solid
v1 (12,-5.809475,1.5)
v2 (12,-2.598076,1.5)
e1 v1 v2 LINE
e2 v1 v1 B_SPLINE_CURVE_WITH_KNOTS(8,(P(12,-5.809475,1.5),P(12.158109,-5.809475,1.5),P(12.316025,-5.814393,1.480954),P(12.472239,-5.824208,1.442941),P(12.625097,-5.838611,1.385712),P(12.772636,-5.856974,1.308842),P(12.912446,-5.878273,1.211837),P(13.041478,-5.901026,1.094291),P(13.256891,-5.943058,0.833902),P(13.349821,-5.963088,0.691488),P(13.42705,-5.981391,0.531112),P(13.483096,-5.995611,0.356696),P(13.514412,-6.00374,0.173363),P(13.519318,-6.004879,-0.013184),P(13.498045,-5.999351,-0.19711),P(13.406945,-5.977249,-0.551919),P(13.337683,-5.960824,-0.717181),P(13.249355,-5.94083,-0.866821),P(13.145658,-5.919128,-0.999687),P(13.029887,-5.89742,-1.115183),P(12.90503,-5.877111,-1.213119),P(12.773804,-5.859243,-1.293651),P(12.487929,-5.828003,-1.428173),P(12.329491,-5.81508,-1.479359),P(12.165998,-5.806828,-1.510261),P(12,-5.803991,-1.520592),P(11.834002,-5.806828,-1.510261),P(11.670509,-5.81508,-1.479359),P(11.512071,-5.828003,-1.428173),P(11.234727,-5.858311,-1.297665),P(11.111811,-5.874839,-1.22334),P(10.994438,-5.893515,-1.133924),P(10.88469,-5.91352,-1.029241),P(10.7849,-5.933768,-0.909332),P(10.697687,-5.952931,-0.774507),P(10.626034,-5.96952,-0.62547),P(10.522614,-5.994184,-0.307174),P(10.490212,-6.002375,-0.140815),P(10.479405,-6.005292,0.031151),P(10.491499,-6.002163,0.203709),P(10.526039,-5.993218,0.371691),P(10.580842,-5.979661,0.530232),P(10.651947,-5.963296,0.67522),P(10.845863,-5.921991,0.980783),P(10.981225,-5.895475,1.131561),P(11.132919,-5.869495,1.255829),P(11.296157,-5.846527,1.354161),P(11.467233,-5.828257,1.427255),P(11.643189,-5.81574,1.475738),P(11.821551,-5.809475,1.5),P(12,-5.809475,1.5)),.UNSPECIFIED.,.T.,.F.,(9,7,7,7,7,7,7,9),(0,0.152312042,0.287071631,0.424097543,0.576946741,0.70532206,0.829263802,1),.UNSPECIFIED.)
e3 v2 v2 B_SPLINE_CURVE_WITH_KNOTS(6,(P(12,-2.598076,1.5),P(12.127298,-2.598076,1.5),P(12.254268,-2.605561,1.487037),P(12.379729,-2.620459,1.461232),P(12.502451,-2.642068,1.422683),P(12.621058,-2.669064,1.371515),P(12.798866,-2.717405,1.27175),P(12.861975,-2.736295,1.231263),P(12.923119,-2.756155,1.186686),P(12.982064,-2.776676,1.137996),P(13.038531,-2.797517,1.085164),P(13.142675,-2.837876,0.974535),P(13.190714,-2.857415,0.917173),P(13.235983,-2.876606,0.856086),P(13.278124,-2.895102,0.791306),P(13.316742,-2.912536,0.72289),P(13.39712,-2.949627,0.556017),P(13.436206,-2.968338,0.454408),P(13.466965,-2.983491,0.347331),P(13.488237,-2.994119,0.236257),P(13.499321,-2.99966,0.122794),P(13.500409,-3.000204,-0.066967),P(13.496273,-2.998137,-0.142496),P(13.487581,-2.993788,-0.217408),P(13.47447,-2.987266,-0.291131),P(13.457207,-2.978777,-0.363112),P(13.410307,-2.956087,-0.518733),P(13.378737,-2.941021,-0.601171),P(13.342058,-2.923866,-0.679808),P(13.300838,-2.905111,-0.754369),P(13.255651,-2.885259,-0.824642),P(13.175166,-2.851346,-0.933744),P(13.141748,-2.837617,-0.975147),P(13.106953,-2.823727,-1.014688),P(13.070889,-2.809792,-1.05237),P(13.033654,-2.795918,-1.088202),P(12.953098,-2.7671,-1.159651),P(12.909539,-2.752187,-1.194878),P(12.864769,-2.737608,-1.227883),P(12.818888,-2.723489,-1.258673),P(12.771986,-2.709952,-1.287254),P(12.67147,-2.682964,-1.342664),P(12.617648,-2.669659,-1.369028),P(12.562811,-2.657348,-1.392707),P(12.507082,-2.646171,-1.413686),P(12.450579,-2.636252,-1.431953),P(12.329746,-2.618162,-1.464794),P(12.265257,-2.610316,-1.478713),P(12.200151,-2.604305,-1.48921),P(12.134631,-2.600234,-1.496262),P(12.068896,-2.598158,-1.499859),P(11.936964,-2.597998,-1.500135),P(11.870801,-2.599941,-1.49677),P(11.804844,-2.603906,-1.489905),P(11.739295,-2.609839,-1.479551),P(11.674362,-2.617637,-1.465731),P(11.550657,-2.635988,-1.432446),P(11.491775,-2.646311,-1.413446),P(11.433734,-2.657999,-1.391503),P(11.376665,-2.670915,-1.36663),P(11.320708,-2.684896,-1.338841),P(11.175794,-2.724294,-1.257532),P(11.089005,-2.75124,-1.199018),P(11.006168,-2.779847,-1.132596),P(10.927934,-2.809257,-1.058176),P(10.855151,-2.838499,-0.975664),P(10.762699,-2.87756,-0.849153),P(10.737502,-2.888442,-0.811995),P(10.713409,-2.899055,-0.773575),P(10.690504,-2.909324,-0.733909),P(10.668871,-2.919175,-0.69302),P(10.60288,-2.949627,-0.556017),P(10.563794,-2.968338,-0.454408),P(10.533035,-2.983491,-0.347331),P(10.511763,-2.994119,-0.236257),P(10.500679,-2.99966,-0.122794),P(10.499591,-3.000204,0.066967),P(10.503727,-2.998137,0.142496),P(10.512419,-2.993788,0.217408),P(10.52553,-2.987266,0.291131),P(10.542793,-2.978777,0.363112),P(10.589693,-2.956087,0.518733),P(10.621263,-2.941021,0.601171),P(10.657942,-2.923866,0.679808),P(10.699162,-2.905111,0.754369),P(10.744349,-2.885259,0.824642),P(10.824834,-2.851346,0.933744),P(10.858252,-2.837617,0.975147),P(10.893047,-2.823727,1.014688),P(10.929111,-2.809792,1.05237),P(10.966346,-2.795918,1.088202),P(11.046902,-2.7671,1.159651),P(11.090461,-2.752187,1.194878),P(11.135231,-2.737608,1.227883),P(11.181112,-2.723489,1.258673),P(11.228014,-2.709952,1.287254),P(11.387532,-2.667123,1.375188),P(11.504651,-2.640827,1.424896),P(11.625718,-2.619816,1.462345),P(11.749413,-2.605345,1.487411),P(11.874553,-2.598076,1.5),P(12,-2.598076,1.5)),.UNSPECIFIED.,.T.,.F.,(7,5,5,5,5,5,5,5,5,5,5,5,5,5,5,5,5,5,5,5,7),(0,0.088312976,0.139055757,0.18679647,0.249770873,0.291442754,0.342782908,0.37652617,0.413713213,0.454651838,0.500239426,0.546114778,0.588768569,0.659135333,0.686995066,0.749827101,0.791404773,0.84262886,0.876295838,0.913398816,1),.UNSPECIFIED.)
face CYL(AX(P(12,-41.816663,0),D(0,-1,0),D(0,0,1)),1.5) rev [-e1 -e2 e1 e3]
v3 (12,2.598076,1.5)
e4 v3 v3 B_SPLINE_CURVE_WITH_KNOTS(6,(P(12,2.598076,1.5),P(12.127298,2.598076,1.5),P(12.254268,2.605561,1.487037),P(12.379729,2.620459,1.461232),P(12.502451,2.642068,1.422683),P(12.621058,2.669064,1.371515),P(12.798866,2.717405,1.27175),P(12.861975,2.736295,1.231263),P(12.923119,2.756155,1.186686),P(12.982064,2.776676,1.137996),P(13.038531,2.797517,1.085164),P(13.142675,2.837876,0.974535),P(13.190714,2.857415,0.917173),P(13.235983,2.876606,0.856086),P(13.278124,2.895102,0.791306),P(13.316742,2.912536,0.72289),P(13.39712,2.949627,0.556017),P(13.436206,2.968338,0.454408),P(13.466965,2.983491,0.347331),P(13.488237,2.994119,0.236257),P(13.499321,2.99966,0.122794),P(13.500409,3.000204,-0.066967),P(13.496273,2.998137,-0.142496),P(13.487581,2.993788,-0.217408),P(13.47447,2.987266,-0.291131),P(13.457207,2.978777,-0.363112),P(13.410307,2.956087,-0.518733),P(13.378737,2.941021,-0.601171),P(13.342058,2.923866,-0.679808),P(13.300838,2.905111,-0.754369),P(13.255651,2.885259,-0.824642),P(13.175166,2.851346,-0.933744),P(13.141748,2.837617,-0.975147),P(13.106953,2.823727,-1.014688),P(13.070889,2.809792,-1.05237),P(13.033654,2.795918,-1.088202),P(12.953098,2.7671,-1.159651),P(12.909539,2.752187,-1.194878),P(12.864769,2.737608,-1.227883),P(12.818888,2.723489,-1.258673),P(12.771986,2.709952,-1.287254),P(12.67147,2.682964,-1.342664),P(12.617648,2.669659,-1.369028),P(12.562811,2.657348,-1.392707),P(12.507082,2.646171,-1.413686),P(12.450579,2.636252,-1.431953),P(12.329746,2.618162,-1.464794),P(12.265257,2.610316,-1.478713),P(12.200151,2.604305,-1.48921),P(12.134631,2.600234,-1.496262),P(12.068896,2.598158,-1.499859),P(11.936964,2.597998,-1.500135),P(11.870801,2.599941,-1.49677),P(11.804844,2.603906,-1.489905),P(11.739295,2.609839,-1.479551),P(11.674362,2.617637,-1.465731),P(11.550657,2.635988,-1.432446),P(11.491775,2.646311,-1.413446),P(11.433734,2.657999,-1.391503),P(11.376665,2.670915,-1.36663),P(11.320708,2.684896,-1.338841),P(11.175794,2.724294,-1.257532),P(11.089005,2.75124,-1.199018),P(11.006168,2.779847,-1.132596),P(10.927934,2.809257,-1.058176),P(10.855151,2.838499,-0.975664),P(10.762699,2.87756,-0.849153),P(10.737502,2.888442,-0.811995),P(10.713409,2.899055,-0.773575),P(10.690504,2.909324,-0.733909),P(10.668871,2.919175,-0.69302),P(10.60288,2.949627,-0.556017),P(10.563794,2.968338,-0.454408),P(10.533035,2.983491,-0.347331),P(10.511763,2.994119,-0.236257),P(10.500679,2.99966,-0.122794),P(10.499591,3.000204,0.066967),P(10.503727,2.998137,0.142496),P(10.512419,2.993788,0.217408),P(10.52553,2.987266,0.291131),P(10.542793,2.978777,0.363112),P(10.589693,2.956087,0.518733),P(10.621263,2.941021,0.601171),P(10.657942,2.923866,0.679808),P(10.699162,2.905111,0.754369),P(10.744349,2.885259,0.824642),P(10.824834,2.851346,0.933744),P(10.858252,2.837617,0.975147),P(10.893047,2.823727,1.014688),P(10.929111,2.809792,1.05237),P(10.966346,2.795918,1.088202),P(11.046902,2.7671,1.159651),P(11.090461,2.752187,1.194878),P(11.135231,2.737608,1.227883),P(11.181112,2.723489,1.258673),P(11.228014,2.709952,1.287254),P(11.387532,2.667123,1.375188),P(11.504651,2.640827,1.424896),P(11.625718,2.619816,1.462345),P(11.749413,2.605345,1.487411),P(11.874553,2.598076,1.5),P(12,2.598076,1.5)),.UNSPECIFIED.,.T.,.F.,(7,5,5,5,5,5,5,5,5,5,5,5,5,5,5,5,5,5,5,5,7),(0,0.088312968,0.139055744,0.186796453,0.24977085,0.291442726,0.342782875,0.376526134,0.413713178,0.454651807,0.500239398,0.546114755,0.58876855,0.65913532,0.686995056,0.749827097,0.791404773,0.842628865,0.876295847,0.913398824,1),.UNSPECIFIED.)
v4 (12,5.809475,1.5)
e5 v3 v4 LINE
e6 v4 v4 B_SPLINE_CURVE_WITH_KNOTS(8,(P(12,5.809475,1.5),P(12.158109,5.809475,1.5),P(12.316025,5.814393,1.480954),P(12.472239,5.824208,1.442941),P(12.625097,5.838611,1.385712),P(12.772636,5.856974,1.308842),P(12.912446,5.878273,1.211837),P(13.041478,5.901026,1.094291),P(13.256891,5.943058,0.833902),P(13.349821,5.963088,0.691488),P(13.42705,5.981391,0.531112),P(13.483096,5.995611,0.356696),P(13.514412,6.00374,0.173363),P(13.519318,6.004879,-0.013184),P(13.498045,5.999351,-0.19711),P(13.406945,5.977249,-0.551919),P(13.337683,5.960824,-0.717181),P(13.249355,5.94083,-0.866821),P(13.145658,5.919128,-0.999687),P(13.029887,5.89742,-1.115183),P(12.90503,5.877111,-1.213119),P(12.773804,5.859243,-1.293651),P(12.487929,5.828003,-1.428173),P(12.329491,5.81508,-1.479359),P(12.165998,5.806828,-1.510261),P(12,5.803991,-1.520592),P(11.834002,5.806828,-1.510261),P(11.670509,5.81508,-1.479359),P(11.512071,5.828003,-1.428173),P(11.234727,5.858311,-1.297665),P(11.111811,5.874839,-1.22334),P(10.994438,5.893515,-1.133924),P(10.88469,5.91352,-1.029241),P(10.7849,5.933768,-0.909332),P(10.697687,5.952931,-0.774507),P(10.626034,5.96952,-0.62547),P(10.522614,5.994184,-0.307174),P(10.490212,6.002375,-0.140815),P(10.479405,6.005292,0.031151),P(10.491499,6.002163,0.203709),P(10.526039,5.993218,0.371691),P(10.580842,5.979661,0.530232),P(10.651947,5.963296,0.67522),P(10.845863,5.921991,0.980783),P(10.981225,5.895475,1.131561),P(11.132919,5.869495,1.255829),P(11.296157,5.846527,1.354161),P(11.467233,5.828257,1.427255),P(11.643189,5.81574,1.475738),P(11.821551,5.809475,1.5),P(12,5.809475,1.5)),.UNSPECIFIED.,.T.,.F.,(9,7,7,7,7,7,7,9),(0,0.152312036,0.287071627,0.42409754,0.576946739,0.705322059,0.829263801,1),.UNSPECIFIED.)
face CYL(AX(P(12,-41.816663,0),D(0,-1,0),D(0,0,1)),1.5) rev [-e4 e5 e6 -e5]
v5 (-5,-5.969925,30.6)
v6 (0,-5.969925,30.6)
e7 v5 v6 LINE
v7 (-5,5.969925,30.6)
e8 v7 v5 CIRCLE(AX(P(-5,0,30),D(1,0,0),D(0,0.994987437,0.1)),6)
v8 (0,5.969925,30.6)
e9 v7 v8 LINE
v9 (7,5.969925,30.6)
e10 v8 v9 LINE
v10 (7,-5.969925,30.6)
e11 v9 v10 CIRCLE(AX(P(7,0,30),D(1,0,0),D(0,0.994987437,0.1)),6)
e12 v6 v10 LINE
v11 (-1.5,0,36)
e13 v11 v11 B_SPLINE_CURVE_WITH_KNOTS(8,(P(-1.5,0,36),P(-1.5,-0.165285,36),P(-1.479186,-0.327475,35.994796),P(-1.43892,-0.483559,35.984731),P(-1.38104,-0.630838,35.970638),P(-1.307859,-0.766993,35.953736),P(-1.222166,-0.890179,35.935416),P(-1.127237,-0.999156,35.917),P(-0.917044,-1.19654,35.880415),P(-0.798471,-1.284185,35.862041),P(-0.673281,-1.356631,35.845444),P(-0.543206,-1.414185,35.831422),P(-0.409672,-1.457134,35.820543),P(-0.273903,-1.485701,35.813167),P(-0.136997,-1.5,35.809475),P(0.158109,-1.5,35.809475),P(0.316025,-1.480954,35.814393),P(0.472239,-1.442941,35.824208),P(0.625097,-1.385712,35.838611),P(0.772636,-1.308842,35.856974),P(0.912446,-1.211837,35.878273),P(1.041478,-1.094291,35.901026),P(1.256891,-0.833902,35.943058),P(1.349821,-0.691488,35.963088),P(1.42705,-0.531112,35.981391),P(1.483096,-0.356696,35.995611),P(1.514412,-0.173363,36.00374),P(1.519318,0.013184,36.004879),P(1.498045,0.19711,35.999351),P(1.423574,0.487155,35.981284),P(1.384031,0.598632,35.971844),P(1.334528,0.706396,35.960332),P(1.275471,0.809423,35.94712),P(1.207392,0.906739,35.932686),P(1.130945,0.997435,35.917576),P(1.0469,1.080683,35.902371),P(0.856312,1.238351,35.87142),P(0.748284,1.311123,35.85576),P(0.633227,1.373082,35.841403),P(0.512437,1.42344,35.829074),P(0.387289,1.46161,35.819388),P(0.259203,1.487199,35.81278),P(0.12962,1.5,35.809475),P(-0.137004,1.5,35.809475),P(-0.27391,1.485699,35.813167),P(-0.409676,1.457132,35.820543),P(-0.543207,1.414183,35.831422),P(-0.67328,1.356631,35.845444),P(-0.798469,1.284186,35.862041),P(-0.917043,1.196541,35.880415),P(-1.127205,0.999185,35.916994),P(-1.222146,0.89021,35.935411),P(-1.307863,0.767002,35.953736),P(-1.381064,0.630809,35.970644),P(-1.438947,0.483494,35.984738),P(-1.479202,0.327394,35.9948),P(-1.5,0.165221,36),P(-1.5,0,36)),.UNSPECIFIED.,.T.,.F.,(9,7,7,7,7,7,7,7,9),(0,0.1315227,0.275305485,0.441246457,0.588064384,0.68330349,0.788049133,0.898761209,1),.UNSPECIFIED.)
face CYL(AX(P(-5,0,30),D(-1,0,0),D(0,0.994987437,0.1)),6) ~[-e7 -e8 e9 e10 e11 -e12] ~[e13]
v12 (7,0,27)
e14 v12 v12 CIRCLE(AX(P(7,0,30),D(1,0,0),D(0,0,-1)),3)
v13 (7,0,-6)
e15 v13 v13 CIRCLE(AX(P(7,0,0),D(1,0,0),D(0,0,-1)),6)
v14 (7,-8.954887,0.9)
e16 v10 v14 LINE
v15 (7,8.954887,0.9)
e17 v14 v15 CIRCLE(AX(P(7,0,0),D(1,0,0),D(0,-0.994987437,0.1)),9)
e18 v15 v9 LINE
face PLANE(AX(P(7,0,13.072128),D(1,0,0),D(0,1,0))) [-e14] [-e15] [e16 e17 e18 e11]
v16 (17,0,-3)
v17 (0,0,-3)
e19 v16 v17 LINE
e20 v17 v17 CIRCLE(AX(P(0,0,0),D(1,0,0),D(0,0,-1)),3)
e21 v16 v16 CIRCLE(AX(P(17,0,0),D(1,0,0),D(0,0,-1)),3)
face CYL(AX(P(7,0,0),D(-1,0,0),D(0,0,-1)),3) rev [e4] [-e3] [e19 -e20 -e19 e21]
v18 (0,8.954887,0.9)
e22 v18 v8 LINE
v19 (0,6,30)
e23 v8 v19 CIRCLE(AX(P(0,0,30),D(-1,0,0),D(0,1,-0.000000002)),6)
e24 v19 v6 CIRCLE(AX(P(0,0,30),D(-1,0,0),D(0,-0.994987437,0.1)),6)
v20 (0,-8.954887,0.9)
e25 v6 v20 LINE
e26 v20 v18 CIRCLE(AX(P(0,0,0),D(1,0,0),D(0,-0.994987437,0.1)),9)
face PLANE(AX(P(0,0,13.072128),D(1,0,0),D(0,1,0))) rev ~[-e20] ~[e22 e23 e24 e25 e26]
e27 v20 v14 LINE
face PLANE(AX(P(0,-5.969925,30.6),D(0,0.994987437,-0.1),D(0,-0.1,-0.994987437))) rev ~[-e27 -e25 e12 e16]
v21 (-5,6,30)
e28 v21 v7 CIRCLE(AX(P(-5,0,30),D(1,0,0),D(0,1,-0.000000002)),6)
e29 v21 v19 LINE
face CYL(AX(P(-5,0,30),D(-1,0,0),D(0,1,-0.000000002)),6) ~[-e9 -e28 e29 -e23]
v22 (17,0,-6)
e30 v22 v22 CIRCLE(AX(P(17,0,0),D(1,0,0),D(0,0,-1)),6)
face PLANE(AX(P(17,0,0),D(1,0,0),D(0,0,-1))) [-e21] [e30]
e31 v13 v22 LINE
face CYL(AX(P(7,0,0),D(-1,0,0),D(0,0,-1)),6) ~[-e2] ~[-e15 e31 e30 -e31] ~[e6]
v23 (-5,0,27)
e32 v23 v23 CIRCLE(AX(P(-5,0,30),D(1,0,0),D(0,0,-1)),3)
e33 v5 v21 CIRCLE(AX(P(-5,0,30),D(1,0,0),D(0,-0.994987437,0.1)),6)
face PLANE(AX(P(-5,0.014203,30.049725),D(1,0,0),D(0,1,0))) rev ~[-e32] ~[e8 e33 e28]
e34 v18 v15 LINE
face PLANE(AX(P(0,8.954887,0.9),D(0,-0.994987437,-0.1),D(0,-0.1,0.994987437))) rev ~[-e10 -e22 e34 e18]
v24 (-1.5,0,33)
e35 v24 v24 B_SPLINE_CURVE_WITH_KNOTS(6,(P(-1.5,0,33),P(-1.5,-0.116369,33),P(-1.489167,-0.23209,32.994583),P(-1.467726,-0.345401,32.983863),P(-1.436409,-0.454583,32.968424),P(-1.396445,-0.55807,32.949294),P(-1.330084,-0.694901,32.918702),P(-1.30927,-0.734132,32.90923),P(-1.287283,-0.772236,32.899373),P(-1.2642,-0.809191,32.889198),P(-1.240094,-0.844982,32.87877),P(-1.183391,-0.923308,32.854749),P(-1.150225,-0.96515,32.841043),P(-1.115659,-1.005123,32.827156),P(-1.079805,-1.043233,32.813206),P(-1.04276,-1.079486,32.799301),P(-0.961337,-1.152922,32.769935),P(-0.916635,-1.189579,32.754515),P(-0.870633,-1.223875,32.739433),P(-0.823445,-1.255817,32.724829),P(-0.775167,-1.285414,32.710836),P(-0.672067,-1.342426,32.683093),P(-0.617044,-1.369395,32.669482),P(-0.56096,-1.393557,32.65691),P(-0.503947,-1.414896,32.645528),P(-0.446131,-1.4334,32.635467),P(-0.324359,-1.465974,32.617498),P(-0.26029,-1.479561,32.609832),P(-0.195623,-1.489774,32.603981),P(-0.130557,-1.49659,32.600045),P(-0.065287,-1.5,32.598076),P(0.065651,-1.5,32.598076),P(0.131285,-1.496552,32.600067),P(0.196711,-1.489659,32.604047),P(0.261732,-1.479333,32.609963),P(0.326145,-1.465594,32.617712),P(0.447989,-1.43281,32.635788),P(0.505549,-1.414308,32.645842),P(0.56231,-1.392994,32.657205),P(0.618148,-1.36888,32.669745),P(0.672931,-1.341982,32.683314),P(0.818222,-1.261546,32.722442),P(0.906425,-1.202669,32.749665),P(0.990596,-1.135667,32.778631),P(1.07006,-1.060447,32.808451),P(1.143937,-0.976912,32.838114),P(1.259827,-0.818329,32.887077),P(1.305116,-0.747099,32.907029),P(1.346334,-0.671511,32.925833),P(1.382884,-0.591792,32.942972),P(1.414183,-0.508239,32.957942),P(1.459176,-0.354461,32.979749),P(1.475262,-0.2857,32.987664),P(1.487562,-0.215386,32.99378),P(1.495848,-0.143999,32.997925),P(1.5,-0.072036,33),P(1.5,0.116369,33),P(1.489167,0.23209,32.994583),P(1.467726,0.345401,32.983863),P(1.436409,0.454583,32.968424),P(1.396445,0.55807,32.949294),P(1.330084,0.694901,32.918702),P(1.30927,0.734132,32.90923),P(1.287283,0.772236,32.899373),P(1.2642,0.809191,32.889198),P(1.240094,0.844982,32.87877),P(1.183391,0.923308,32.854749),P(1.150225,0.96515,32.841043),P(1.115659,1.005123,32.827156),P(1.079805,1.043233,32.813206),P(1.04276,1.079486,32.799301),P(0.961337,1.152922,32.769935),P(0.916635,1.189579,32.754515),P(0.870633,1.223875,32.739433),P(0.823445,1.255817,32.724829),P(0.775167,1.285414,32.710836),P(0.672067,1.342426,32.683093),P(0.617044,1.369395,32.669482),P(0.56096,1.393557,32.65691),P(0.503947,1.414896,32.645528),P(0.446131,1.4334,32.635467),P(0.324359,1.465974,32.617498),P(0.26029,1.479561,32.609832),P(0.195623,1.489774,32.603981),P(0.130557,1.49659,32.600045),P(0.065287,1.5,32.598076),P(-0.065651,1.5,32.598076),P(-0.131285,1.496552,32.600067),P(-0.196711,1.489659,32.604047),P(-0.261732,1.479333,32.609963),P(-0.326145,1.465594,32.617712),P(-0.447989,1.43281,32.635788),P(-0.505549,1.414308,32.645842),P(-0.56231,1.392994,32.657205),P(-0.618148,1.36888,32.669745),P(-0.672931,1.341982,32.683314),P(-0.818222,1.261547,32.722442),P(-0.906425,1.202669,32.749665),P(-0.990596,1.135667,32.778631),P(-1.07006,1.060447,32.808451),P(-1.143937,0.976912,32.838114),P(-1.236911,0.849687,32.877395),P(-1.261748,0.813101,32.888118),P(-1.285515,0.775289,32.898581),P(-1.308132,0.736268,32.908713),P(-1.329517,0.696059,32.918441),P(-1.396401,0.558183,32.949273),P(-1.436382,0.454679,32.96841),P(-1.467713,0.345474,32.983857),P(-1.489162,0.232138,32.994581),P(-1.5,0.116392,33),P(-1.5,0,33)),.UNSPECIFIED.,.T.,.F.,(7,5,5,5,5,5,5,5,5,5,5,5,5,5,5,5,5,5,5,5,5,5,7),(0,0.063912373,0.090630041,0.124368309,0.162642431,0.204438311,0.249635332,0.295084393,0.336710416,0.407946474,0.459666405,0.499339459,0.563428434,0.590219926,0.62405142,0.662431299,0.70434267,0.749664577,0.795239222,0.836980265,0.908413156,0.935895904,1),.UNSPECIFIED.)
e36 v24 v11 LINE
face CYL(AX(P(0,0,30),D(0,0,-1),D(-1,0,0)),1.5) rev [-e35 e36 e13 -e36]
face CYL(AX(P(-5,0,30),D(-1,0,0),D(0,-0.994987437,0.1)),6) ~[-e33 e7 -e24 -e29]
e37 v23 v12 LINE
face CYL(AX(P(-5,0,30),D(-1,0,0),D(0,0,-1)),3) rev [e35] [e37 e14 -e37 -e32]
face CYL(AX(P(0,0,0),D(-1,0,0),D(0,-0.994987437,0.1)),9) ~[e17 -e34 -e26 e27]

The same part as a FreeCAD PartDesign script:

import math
import FreeCAD as App
import Part
import Sketcher

V = App.Vector
Q = App.Units.Quantity

doc = App.newDocument("Part")
body = doc.addObject("PartDesign::Body", "Body")

sketch1 = body.newObject("Sketcher::SketchObject", "Sketch")
sketch1.AttachmentSupport = (doc.getObject("YZ_Plane"), [""])
sketch1.MapMode = "FlatFace"
sketch1.addGeometry([
    Part.LineSegment(V(-6, 30.6, 0), V(-9, 0.9, 0)),
    Part.ArcOfCircle(Part.Circle(V(0, 0, 0), V(0, 0, 1), 9), math.radians(174), math.radians(366)),
    Part.LineSegment(V(9, 0.9, 0), V(6, 30.6, 0)),
    Part.ArcOfCircle(Part.Circle(V(0, 30, 0), V(0, 0, 1), 6), math.radians(6), math.radians(174)),
    Part.Circle(V(0, 0, 0), V(0, 0, 1), 3),
    Part.Circle(V(0, 30, 0), V(0, 0, 1), 3),
], False)
sketch1.addConstraint([
    Sketcher.Constraint("Tangent", 0, 2, 1, 1),
    Sketcher.Constraint("Tangent", 1, 2, 2, 1),
    Sketcher.Constraint("Tangent", 2, 2, 3, 1),
    Sketcher.Constraint("Tangent", 3, 2, 0, 1),
    Sketcher.Constraint("Coincident", 1, 3, -1, 1),
    Sketcher.Constraint("Coincident", 4, 3, -1, 1),
    Sketcher.Constraint("Coincident", 5, 3, 3, 3),
    Sketcher.Constraint("Equal", 4, 5),
    Sketcher.Constraint("PointOnObject", 3, 3, -2),
    Sketcher.Constraint("Diameter", 4, Q("6 mm")),
    Sketcher.Constraint("Radius", 1, Q("9 mm")),
    Sketcher.Constraint("Radius", 3, Q("6 mm")),
    Sketcher.Constraint("DistanceY", -1, 1, 3, 3, Q("30 mm")),
])
pad1 = body.newObject("PartDesign::Pad", "Pad")
pad1.Profile = sketch1
pad1.Length = 7

sketch2 = body.newObject("Sketcher::SketchObject", "Sketch001")
sketch2.AttachmentSupport = (doc.getObject("YZ_Plane"), [""])
sketch2.MapMode = "FlatFace"
sketch2.AttachmentOffset = App.Placement(V(0, 0, -5), App.Rotation())
sketch2.addGeometry([
    Part.ArcOfCircle(Part.Circle(V(0, 30, 0), V(0, 0, 1), 6), math.radians(174), math.radians(360)),
    Part.ArcOfCircle(Part.Circle(V(0, 30, 0), V(0, 0, 1), 6), math.radians(0), math.radians(5.74)),
    Part.ArcOfCircle(Part.Circle(V(0, 30, 0), V(0, 0, 1), 6), math.radians(6), math.radians(174)),
    Part.Circle(V(0, 30, 0), V(0, 0, 1), 3),
], False)
sketch2.addConstraint([
    Sketcher.Constraint("Tangent", 0, 2, 1, 1),
    Sketcher.Constraint("Tangent", 1, 2, 2, 1),
    Sketcher.Constraint("Tangent", 2, 2, 0, 1),
    Sketcher.Constraint("Coincident", 3, 3, 0, 3),
    Sketcher.Constraint("Symmetric", 1, 2, 2, 2, -2),
    Sketcher.Constraint("Horizontal", 3, 3, 0, 2),
    Sketcher.Constraint("Diameter", 3, Q("6 mm")),
    Sketcher.Constraint("Radius", 0, Q("6 mm")),
    Sketcher.Constraint("DistanceY", -1, 1, 0, 3, Q("30 mm")),
    Sketcher.Constraint("DistanceY", -1, 1, 1, 2, Q("30.6 mm")),
])
pad2 = body.newObject("PartDesign::Pad", "Pad001")
pad2.Profile = sketch2
pad2.Length = 12

sketch3 = body.newObject("Sketcher::SketchObject", "Sketch002")
sketch3.AttachmentSupport = (doc.getObject("YZ_Plane"), [""])
sketch3.MapMode = "FlatFace"
sketch3.AttachmentOffset = App.Placement(V(0, 0, 7), App.Rotation())
sketch3.addGeometry([
    Part.Circle(V(0, 0, 0), V(0, 0, 1), 6),
    Part.Circle(V(0, 0, 0), V(0, 0, 1), 3),
], False)
sketch3.addConstraint([
    Sketcher.Constraint("Coincident", 0, 3, -1, 1),
    Sketcher.Constraint("Coincident", 1, 3, -1, 1),
    Sketcher.Constraint("Diameter", 0, Q("12 mm")),
    Sketcher.Constraint("Diameter", 1, Q("6 mm")),
])
pad3 = body.newObject("PartDesign::Pad", "Pad002")
pad3.Profile = sketch3
pad3.Length = 10

sketch4 = body.newObject("Sketcher::SketchObject", "Sketch003")
sketch4.AttachmentSupport = (doc.getObject("XZ_Plane"), [""])
sketch4.MapMode = "FlatFace"
sketch4.addGeometry(Part.Circle(V(12, 0, 0), V(0, 0, 1), 1.5), False)
sketch4.addConstraint([
    Sketcher.Constraint("PointOnObject", 0, 3, -1),
    Sketcher.Constraint("Diameter", 0, Q("3 mm")),
    Sketcher.Constraint("DistanceX", -1, 1, 0, 3, Q("12 mm")),
])
pocket1 = body.newObject("PartDesign::Pocket", "Pocket")
pocket1.Profile = sketch4
pocket1.Type = "ThroughAll"
pocket1.Midplane = True

sketch5 = body.newObject("Sketcher::SketchObject", "Sketch004")
sketch5.AttachmentSupport = (doc.getObject("XY_Plane"), [""])
sketch5.MapMode = "FlatFace"
sketch5.AttachmentOffset = App.Placement(V(0, 0, 30), App.Rotation())
sketch5.addGeometry(Part.Circle(V(0, 0, 0), V(0, 0, 1), 1.5), False)
sketch5.addConstraint([
    Sketcher.Constraint("Coincident", 0, 3, -1, 1),
    Sketcher.Constraint("Diameter", 0, Q("3 mm")),
])
pocket2 = body.newObject("PartDesign::Pocket", "Pocket001")
pocket2.Profile = sketch5
pocket2.Type = "ThroughAll"
pocket2.Reversed = True

doc.recompute()
